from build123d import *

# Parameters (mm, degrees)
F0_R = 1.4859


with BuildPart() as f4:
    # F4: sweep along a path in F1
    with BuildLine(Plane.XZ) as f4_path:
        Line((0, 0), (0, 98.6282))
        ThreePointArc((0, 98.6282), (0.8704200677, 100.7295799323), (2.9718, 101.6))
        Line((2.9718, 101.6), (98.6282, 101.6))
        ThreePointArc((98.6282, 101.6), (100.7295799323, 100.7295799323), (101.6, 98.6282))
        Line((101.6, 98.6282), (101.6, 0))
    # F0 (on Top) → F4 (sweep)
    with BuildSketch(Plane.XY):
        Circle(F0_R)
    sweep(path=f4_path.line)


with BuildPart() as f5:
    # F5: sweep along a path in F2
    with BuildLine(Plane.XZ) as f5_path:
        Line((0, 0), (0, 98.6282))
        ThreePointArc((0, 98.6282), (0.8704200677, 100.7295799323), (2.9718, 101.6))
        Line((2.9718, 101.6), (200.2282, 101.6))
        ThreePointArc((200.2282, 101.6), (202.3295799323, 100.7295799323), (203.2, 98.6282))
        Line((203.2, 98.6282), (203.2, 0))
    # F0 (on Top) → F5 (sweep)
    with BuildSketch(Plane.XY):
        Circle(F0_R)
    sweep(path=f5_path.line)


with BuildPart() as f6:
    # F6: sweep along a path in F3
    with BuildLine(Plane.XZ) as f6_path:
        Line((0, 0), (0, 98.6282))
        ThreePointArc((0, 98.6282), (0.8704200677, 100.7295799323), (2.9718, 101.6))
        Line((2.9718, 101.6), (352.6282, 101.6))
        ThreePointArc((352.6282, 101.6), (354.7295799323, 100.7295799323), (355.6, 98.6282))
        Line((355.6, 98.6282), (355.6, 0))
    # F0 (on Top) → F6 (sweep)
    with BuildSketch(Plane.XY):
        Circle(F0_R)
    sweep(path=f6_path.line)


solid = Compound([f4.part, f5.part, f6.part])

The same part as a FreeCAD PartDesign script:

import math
import FreeCAD as App
import Part
import Sketcher
Q = App.Units.Quantity

doc = App.newDocument("Part")
body = doc.addObject("PartDesign::Body", "Body")

# Sketch on XY plane
sketch1 = body.newObject("Sketcher::SketchObject", "Sketch")
sketch1.AttachmentSupport = (doc.getObject("XY_Plane"), [""])
sketch1.MapMode = "FlatFace"
sketch1.addGeometry(Part.Circle(App.Vector(0, 0, 0), App.Vector(0, 0, 1), 1.5), False)
sketch1.addConstraint([
    Sketcher.Constraint("Coincident", 0, 3, -1, 1),
    Sketcher.Constraint("Diameter", 0, Q("0.117 in")),
])

# Sketch on XZ plane
sketch2 = body.newObject("Sketcher::SketchObject", "Sketch001")
sketch2.AttachmentSupport = (doc.getObject("XZ_Plane"), [""])
sketch2.MapMode = "FlatFace"
sketch2.addGeometry([
    Part.LineSegment(App.Vector(0, 0, 0), App.Vector(0, 98.6, 0)),  # 0
    Part.ArcOfCircle(Part.Circle(App.Vector(3, 98.6, 0), App.Vector(0, 0, 1), 3), math.radians(90), math.radians(180)),  # 1
    Part.LineSegment(App.Vector(3, 101.6, 0), App.Vector(98.6, 101.6, 0)),  # 2
    Part.ArcOfCircle(Part.Circle(App.Vector(98.6, 98.6, 0), App.Vector(0, 0, 1), 3), math.radians(0), math.radians(90)),  # 3
    Part.LineSegment(App.Vector(101.6, 98.6, 0), App.Vector(101.6, 0, 0)),  # 4
], False)
sketch2.addConstraint([
    Sketcher.Constraint("Tangent", 0, 2, 1, 2),
    Sketcher.Constraint("Tangent", 1, 1, 2, 1),
    Sketcher.Constraint("Tangent", 2, 2, 3, 2),
    Sketcher.Constraint("Tangent", 3, 1, 4, 1),
    Sketcher.Constraint("Vertical", 0),
    Sketcher.Constraint("Horizontal", 2),
    Sketcher.Constraint("Vertical", 4),
    Sketcher.Constraint("Coincident", 0, 1, -1, 1),
    Sketcher.Constraint("Equal", 1, 3),
    Sketcher.Constraint("PointOnObject", 4, 2, -1),
    Sketcher.Constraint("DistanceY", -1, 1, 1, 1, Q("4 in")),
    Sketcher.Constraint("DistanceX", -1, 1, 3, 1, Q("4 in")),
    Sketcher.Constraint("Radius", 1, Q("0.117 in")),
])
doc.recompute()

additivepipe = body.newObject("PartDesign::AdditivePipe", "AdditivePipe")
additivepipe.Profile = sketch1
additivepipe.Spine = (sketch2, ["Edge1", "Edge2", "Edge3", "Edge4", "Edge5"])
body2 = doc.addObject("PartDesign::Body", "Body001")

# Sketch on XY plane
sketch3 = body2.newObject("Sketcher::SketchObject", "Sketch002")
sketch3.AttachmentSupport = (doc.getObject("XY_Plane001"), [""])
sketch3.MapMode = "FlatFace"
sketch3.addGeometry(Part.Circle(App.Vector(0, 0, 0), App.Vector(0, 0, 1), 1.5), False)
sketch3.addConstraint([
    Sketcher.Constraint("Coincident", 0, 3, -1, 1),
    Sketcher.Constraint("Diameter", 0, Q("0.117 in")),
])

# Sketch on XZ plane
sketch4 = body2.newObject("Sketcher::SketchObject", "Sketch003")
sketch4.AttachmentSupport = (doc.getObject("XZ_Plane001"), [""])
sketch4.MapMode = "FlatFace"
sketch4.addGeometry([
    Part.LineSegment(App.Vector(0, 0, 0), App.Vector(0, 98.6, 0)),  # 0
    Part.ArcOfCircle(Part.Circle(App.Vector(3, 98.6, 0), App.Vector(0, 0, 1), 3), math.radians(90), math.radians(180)),  # 1
    Part.LineSegment(App.Vector(3, 101.6, 0), App.Vector(200.2, 101.6, 0)),  # 2
    Part.ArcOfCircle(Part.Circle(App.Vector(200.2, 98.6, 0), App.Vector(0, 0, 1), 3), math.radians(0), math.radians(90)),  # 3
    Part.LineSegment(App.Vector(203.2, 98.6, 0), App.Vector(203.2, 0, 0)),  # 4
], False)
sketch4.addConstraint([
    Sketcher.Constraint("Tangent", 0, 2, 1, 2),
    Sketcher.Constraint("Tangent", 1, 1, 2, 1),
    Sketcher.Constraint("Tangent", 2, 2, 3, 2),
    Sketcher.Constraint("Tangent", 3, 1, 4, 1),
    Sketcher.Constraint("Vertical", 0),
    Sketcher.Constraint("Horizontal", 2),
    Sketcher.Constraint("Vertical", 4),
    Sketcher.Constraint("Coincident", 0, 1, -1, 1),
    Sketcher.Constraint("Equal", 1, 3),
    Sketcher.Constraint("PointOnObject", 4, 2, -1),
    Sketcher.Constraint("DistanceY", -1, 1, 1, 1, Q("4 in")),
    Sketcher.Constraint("DistanceX", -1, 1, 3, 1, Q("8 in")),
    Sketcher.Constraint("Radius", 1, Q("0.117 in")),
])
doc.recompute()

additivepipe2 = body2.newObject("PartDesign::AdditivePipe", "AdditivePipe001")
additivepipe2.Profile = sketch3
additivepipe2.Spine = (sketch4, ["Edge1", "Edge2", "Edge3", "Edge4", "Edge5"])
body3 = doc.addObject("PartDesign::Body", "Body002")

# Sketch on XY plane
sketch5 = body3.newObject("Sketcher::SketchObject", "Sketch004")
sketch5.AttachmentSupport = (doc.getObject("XY_Plane002"), [""])
sketch5.MapMode = "FlatFace"
sketch5.addGeometry(Part.Circle(App.Vector(0, 0, 0), App.Vector(0, 0, 1), 1.5), False)
sketch5.addConstraint([
    Sketcher.Constraint("Coincident", 0, 3, -1, 1),
    Sketcher.Constraint("Diameter", 0, Q("0.117 in")),
])

# Sketch on XZ plane
sketch6 = body3.newObject("Sketcher::SketchObject", "Sketch005")
sketch6.AttachmentSupport = (doc.getObject("XZ_Plane002"), [""])
sketch6.MapMode = "FlatFace"
sketch6.addGeometry([
    Part.LineSegment(App.Vector(0, 0, 0), App.Vector(0, 98.6, 0)),  # 0
    Part.ArcOfCircle(Part.Circle(App.Vector(3, 98.6, 0), App.Vector(0, 0, 1), 3), math.radians(90), math.radians(180)),  # 1
    Part.LineSegment(App.Vector(3, 101.6, 0), App.Vector(352.6, 101.6, 0)),  # 2
    Part.ArcOfCircle(Part.Circle(App.Vector(352.6, 98.6, 0), App.Vector(0, 0, 1), 3), math.radians(0), math.radians(90)),  # 3
    Part.LineSegment(App.Vector(355.6, 98.6, 0), App.Vector(355.6, 0, 0)),  # 4
], False)
sketch6.addConstraint([
    Sketcher.Constraint("Tangent", 0, 2, 1, 2),
    Sketcher.Constraint("Tangent", 1, 1, 2, 1),
    Sketcher.Constraint("Tangent", 2, 2, 3, 2),
    Sketcher.Constraint("Tangent", 3, 1, 4, 1),
    Sketcher.Constraint("Vertical", 0),
    Sketcher.Constraint("Horizontal", 2),
    Sketcher.Constraint("Vertical", 4),
    Sketcher.Constraint("Coincident", 0, 1, -1, 1),
    Sketcher.Constraint("Equal", 1, 3),
    Sketcher.Constraint("PointOnObject", 4, 2, -1),
    Sketcher.Constraint("DistanceY", -1, 1, 1, 1, Q("4 in")),
    Sketcher.Constraint("DistanceX", -1, 1, 3, 1, Q("14 in")),
    Sketcher.Constraint("Radius", 1, Q("0.117 in")),
])
doc.recompute()

additivepipe3 = body3.newObject("PartDesign::AdditivePipe", "AdditivePipe002")
additivepipe3.Profile = sketch5
additivepipe3.Spine = (sketch6, ["Edge1", "Edge2", "Edge3", "Edge4", "Edge5"])

doc.recompute()
